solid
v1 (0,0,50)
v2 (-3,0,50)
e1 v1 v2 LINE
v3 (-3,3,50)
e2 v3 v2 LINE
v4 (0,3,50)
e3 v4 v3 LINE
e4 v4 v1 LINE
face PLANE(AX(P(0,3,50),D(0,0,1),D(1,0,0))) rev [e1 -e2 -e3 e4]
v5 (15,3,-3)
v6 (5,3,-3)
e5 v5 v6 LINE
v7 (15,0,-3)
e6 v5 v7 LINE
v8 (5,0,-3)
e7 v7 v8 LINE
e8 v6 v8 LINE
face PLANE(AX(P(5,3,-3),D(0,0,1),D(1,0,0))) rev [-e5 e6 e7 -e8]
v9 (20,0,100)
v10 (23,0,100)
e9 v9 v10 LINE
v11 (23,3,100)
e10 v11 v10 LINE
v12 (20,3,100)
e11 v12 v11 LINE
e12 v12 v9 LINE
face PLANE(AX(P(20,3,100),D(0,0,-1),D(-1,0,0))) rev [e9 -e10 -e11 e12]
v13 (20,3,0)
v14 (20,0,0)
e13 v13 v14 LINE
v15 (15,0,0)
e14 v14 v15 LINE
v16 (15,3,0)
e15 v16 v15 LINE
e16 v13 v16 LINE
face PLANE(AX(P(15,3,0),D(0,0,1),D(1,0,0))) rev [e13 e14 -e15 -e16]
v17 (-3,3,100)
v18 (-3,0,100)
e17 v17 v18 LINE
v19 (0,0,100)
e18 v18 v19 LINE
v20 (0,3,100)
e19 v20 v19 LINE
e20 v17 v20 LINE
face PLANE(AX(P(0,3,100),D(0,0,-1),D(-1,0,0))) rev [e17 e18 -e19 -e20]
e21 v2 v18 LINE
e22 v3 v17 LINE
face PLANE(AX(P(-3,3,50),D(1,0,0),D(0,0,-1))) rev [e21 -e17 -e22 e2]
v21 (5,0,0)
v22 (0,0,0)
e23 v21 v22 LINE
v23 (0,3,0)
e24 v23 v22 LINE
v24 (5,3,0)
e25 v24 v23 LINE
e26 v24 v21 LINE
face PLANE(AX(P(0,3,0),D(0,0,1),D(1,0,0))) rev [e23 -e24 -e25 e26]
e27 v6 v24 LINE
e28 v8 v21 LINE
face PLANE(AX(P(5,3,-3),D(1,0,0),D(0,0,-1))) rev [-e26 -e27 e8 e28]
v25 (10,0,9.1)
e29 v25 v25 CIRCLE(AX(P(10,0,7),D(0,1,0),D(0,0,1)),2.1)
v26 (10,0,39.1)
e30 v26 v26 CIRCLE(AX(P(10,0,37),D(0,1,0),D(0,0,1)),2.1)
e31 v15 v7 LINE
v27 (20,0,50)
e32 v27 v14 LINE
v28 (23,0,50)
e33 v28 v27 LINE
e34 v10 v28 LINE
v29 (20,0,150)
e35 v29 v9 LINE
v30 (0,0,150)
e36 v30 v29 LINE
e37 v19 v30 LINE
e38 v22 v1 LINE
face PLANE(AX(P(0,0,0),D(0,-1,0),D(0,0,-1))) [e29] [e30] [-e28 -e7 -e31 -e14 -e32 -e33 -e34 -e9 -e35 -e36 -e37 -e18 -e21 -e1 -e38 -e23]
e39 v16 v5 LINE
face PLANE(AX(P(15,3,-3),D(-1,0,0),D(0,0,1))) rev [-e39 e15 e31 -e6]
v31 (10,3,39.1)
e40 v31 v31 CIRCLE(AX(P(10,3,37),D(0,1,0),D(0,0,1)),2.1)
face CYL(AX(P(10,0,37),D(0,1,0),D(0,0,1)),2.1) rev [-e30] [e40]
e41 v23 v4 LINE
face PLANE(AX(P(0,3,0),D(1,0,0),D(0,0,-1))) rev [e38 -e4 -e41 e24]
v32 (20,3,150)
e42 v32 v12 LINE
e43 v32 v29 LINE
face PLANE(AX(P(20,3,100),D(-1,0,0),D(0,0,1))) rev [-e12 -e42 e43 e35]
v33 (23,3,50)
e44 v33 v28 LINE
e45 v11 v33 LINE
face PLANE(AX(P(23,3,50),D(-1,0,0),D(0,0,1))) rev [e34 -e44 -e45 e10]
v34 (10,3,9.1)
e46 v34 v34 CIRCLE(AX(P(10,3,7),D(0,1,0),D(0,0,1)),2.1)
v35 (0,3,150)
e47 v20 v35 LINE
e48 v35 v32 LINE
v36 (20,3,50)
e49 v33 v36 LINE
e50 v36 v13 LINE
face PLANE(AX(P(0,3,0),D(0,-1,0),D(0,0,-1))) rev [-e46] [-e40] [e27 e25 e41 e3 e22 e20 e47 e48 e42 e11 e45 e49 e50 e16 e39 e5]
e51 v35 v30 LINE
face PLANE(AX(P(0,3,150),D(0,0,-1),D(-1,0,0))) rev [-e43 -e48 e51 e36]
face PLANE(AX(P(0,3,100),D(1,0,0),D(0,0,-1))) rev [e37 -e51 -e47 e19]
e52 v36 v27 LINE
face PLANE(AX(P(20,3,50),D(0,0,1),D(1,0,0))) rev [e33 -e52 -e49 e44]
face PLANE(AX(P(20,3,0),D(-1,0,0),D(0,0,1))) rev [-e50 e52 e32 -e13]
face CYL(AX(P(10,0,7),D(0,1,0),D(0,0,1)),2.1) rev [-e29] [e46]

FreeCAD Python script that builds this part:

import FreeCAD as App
import Part
import Sketcher
from FreeCAD import Vector
Q = App.Units.Quantity

doc = App.newDocument("Part")
body = doc.addObject("PartDesign::Body", "Body")

sketch1 = body.newObject("Sketcher::SketchObject", "Sketch")
sketch1.AttachmentSupport = (doc.getObject("XZ_Plane"), [""])
sketch1.MapMode = "FlatFace"
sketch1.addGeometry([
    Part.LineSegment(Vector(20, 0, 0), Vector(15, 0, 0)),
    Part.LineSegment(Vector(15, 0, 0), Vector(15, -3, 0)),
    Part.LineSegment(Vector(15, -3, 0), Vector(5, -3, 0)),
    Part.LineSegment(Vector(5, -3, 0), Vector(5, 0, 0)),
    Part.LineSegment(Vector(5, 0, 0), Vector(0, 0, 0)),
    Part.LineSegment(Vector(0, 0, 0), Vector(0, 50, 0)),
    Part.LineSegment(Vector(0, 50, 0), Vector(-3, 50, 0)),
    Part.LineSegment(Vector(-3, 50, 0), Vector(-3, 100, 0)),
    Part.LineSegment(Vector(-3, 100, 0), Vector(0, 100, 0)),
    Part.LineSegment(Vector(0, 100, 0), Vector(0, 150, 0)),
    Part.LineSegment(Vector(0, 150, 0), Vector(20, 150, 0)),
    Part.LineSegment(Vector(20, 150, 0), Vector(20, 100, 0)),
    Part.LineSegment(Vector(20, 100, 0), Vector(23, 100, 0)),
    Part.LineSegment(Vector(23, 100, 0), Vector(23, 50, 0)),
    Part.LineSegment(Vector(23, 50, 0), Vector(20, 50, 0)),
    Part.LineSegment(Vector(20, 50, 0), Vector(20, 0, 0)),
], False)
sketch1.addConstraint([
    Sketcher.Constraint("Coincident", 0, 2, 1, 1),
    Sketcher.Constraint("Coincident", 1, 2, 2, 1),
    Sketcher.Constraint("Coincident", 2, 2, 3, 1),
    Sketcher.Constraint("Coincident", 3, 2, 4, 1),
    Sketcher.Constraint("Coincident", 4, 2, 5, 1),
    Sketcher.Constraint("Coincident", 5, 2, 6, 1),
    Sketcher.Constraint("Coincident", 6, 2, 7, 1),
    Sketcher.Constraint("Coincident", 7, 2, 8, 1),
    Sketcher.Constraint("Coincident", 8, 2, 9, 1),
    Sketcher.Constraint("Coincident", 9, 2, 10, 1),
    Sketcher.Constraint("Coincident", 10, 2, 11, 1),
    Sketcher.Constraint("Coincident", 11, 2, 12, 1),
    Sketcher.Constraint("Coincident", 12, 2, 13, 1),
    Sketcher.Constraint("Coincident", 13, 2, 14, 1),
    Sketcher.Constraint("Coincident", 14, 2, 15, 1),
    Sketcher.Constraint("Coincident", 15, 2, 0, 1),
    Sketcher.Constraint("Horizontal", 0),
    Sketcher.Constraint("Vertical", 1),
    Sketcher.Constraint("Horizontal", 2),
    Sketcher.Constraint("Vertical", 3),
    Sketcher.Constraint("Horizontal", 4),
    Sketcher.Constraint("Vertical", 5),
    Sketcher.Constraint("Horizontal", 6),
    Sketcher.Constraint("Vertical", 7),
    Sketcher.Constraint("Horizontal", 8),
    Sketcher.Constraint("Vertical", 9),
    Sketcher.Constraint("Horizontal", 10),
    Sketcher.Constraint("Vertical", 11),
    Sketcher.Constraint("Horizontal", 12),
    Sketcher.Constraint("Vertical", 13),
    Sketcher.Constraint("Horizontal", 14),
    Sketcher.Constraint("Vertical", 15),
    Sketcher.Constraint("Coincident", 4, 2, -1, 1),
    Sketcher.Constraint("PointOnObject", 0, 2, -1),
    Sketcher.Constraint("PointOnObject", 8, 2, -2),
    Sketcher.Constraint("Horizontal", 8, 2, 11, 2),
    Sketcher.Constraint("Horizontal", 6, 2, 13, 2),
    Sketcher.Constraint("Vertical", 11, 2, 14, 2),
    Sketcher.Constraint("Equal", 0, 4),
    Sketcher.Constraint("Equal", 8, 12),
    Sketcher.Constraint("Equal", 14, 1),
    Sketcher.Constraint("Equal", 5, 7),
    Sketcher.Constraint("Equal", 7, 9),
    Sketcher.Constraint("DistanceX", 0, 2, 0, 1, Q("5 mm")),
    Sketcher.Constraint("DistanceX", 2, 2, 2, 1, Q("10 mm")),
    Sketcher.Constraint("DistanceX", 6, 2, 6, 1, Q("3 mm")),
    Sketcher.Constraint("DistanceY", 5, 1, 5, 2, Q("50 mm")),
])
pad1 = body.newObject("PartDesign::Pad", "Pad")
pad1.Profile = sketch1
pad1.Length = 3
pad1.Reversed = True

sketch2 = body.newObject("Sketcher::SketchObject", "Sketch001")
sketch2.AttachmentSupport = (doc.getObject("XZ_Plane"), [""])
sketch2.MapMode = "FlatFace"
sketch2.AttachmentOffset = App.Placement(Vector(0, 0, -3), App.Rotation())
sketch2.addGeometry([
    Part.Circle(Vector(10, 7, 0), Vector(0, 0, 1), 2.1),
    Part.Circle(Vector(10, 37, 0), Vector(0, 0, 1), 2.1),
], False)
sketch2.addConstraint([
    Sketcher.Constraint("Equal", 0, 1),
    Sketcher.Constraint("Vertical", 0, 3, 1, 3),
    Sketcher.Constraint("Diameter", 0, Q("4.2 mm")),
    Sketcher.Constraint("DistanceX", -1, 1, 0, 3, Q("10 mm")),
    Sketcher.Constraint("DistanceY", -1, 1, 0, 3, Q("7 mm")),
    Sketcher.Constraint("DistanceY", -1, 1, 1, 3, Q("37 mm")),
])
pocket1 = body.newObject("PartDesign::Pocket", "Pocket")
pocket1.Profile = sketch2
pocket1.Type = "ThroughAll"
pocket1.Reversed = True

doc.recompute()
